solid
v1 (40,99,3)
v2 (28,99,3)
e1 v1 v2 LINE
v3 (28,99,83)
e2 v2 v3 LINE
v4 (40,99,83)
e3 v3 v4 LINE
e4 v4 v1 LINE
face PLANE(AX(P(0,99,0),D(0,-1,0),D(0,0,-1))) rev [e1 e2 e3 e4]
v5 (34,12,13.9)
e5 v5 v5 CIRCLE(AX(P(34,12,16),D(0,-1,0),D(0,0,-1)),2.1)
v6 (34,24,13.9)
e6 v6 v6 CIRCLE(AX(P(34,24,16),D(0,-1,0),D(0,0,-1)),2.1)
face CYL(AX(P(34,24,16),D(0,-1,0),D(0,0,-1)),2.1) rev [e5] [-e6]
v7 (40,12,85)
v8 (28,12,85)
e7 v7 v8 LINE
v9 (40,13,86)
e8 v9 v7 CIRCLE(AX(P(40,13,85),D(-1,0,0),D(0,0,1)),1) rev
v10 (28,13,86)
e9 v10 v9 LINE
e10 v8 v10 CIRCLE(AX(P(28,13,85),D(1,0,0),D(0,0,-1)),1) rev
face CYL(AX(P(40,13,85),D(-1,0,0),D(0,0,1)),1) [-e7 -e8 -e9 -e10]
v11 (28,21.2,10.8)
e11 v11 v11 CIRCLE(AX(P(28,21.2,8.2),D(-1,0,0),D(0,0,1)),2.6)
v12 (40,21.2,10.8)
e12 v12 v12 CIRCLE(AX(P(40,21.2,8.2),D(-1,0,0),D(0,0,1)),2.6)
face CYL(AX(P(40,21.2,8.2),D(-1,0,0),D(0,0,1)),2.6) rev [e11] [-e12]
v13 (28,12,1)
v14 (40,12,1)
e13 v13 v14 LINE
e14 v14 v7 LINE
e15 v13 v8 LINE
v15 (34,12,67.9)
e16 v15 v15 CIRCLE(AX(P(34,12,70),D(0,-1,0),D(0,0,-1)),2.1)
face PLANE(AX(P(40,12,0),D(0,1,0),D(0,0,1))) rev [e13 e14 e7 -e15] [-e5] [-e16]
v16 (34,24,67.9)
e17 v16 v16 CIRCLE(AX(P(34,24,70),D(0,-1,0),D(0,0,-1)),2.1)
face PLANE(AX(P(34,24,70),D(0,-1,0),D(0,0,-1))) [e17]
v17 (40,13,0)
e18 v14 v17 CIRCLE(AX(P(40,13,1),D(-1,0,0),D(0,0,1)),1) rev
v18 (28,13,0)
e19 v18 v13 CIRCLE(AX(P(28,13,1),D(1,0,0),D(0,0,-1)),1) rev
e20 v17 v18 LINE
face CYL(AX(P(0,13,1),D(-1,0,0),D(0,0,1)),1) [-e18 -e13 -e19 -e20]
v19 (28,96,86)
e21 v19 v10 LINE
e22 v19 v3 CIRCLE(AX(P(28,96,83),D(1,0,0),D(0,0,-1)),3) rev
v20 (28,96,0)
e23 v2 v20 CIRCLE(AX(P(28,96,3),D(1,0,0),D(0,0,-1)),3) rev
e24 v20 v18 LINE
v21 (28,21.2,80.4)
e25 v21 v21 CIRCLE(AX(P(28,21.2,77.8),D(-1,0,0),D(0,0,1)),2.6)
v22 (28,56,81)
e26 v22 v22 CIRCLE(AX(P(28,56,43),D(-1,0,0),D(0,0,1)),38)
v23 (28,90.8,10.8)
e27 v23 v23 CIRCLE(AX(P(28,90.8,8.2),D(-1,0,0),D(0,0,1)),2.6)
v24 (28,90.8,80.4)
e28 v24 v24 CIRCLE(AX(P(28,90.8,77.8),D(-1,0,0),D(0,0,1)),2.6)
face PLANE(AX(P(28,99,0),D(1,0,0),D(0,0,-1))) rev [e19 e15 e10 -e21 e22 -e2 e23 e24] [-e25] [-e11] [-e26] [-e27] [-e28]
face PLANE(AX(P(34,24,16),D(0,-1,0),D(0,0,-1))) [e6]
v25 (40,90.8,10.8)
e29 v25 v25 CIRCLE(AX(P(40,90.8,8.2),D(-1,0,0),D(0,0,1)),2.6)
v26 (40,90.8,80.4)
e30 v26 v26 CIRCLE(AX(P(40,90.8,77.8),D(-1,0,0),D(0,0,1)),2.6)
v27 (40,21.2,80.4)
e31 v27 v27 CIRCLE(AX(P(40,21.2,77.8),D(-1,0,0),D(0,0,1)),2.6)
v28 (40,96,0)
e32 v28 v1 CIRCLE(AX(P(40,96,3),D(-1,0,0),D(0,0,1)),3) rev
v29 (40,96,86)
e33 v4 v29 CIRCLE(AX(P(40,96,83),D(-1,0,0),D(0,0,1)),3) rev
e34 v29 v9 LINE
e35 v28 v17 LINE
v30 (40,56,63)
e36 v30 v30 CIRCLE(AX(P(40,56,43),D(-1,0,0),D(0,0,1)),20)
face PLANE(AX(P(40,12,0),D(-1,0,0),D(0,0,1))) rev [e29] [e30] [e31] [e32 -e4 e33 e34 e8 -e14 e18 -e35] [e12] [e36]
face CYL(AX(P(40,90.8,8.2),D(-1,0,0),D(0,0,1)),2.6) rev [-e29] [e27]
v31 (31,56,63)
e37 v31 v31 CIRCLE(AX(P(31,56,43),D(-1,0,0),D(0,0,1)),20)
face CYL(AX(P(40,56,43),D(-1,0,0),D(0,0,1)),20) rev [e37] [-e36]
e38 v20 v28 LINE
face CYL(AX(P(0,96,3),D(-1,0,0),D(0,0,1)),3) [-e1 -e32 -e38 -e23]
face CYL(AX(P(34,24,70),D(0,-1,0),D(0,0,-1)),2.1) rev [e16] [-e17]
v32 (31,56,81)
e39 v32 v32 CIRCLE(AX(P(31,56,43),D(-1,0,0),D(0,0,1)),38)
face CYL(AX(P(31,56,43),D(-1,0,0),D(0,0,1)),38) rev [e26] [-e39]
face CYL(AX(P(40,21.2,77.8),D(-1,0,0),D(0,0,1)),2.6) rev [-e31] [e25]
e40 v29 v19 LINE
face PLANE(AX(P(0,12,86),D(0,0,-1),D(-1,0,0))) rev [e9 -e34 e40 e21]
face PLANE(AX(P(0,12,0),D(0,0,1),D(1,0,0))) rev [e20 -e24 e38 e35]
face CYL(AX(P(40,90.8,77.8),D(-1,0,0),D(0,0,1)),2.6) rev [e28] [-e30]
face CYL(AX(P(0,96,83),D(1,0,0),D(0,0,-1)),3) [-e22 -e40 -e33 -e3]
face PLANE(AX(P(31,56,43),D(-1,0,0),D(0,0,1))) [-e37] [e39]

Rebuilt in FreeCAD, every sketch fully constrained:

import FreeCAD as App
import Part
import Sketcher
from FreeCAD import Vector


def edges_at(feature, points):
    """Names of the edges that pass closest to the given points."""
    edges = feature.Shape.Edges
    near = lambda p: min(range(len(edges)), key=lambda i: edges[i].distToShape(Part.Vertex(*p))[0])
    return sorted({f"Edge{near(p) + 1}" for p in points})


def add_polygon(sketch, points):
    """Adds a closed chain of lines whose ends are joined by coincident constraints."""
    first, n = sketch.GeometryCount, len(points)
    for a, b in zip(points, points[1:] + points[:1]):
        sketch.addGeometry(Part.LineSegment(App.Vector(*a, 0), App.Vector(*b, 0)), False)
    for i in range(n):
        sketch.addConstraint(Sketcher.Constraint("Coincident", first + i, 2, first + (i + 1) % n, 1))

doc = App.newDocument("Part")
body = doc.addObject("PartDesign::Body", "Body")

sketch1 = body.newObject("Sketcher::SketchObject", "Sketch")
sketch1.AttachmentSupport = (doc.getObject("XZ_Plane"), [""])
sketch1.MapMode = "FlatFace"
add_polygon(sketch1, [(0, 0), (0, 86), (40, 86), (40, 0)])
sketch1.addConstraint(Sketcher.Constraint("Vertical", 0))
sketch1.addConstraint(Sketcher.Constraint("Horizontal", 1))
sketch1.addConstraint(Sketcher.Constraint("Vertical", 2))
sketch1.addConstraint(Sketcher.Constraint("Horizontal", 3))
sketch1.addConstraint(Sketcher.Constraint("Coincident", 3, 2, -1, 1))
sketch1.addConstraint(Sketcher.Constraint("DistanceX", 1, 1, 1, 2, 40.0))
sketch1.addConstraint(Sketcher.Constraint("DistanceY", 0, 1, 0, 2, 86.0))
pad1 = body.newObject("PartDesign::Pad", "Pad")
pad1.Profile = sketch1
pad1.Length = 12
pad1.Reversed = True

sketch2 = body.newObject("Sketcher::SketchObject", "Sketch001")
sketch2.AttachmentSupport = (doc.getObject("XZ_Plane"), [""])
sketch2.MapMode = "FlatFace"
sketch2.AttachmentOffset = App.Placement(Vector(0, 0, -12), App.Rotation())
add_polygon(sketch2, [(28, 0), (28, 86), (40, 86), (40, 0)])
sketch2.addConstraint(Sketcher.Constraint("Vertical", 0))
sketch2.addConstraint(Sketcher.Constraint("Horizontal", 1))
sketch2.addConstraint(Sketcher.Constraint("Vertical", 2))
sketch2.addConstraint(Sketcher.Constraint("Horizontal", 3))
sketch2.addConstraint(Sketcher.Constraint("PointOnObject", 2, 2, -1))
sketch2.addConstraint(Sketcher.Constraint("DistanceX", 1, 1, 1, 2, 12.0))
sketch2.addConstraint(Sketcher.Constraint("DistanceY", 0, 1, 0, 2, 86.0))
sketch2.addConstraint(Sketcher.Constraint("DistanceX", -1, 1, 0, 2, 28.0))
pad2 = body.newObject("PartDesign::Pad", "Pad001")
pad2.Profile = sketch2
pad2.Length = 87
pad2.Reversed = True

sketch3 = body.newObject("Sketcher::SketchObject", "Sketch002")
sketch3.AttachmentSupport = (doc.getObject("XZ_Plane"), [""])
sketch3.MapMode = "FlatFace"
sketch3.AttachmentOffset = App.Placement(Vector(0, 0, -12), App.Rotation())
sketch3.addGeometry(Part.Circle(Vector(14, 8.4, 0), Vector(0, 0, 1), 3), False)
sketch3.addGeometry(Part.Circle(Vector(14, 77.6, 0), Vector(0, 0, 1), 3), False)
sketch3.addConstraint(Sketcher.Constraint("Equal", 0, 1))
sketch3.addConstraint(Sketcher.Constraint("Vertical", 0, 3, 1, 3))
sketch3.addConstraint(Sketcher.Constraint("Diameter", 0, 6.0))
sketch3.addConstraint(Sketcher.Constraint("DistanceX", -1, 1, 0, 3, 14.0))
sketch3.addConstraint(Sketcher.Constraint("DistanceY", -1, 1, 0, 3, 8.4))
sketch3.addConstraint(Sketcher.Constraint("DistanceY", -1, 1, 1, 3, 77.6))
pocket1 = body.newObject("PartDesign::Pocket", "Pocket")
pocket1.Profile = sketch3
pocket1.Type = "ThroughAll"
pocket1.Reversed = True

sketch4 = body.newObject("Sketcher::SketchObject", "Sketch003")
sketch4.AttachmentSupport = (doc.getObject("YZ_Plane"), [""])
sketch4.MapMode = "FlatFace"
sketch4.AttachmentOffset = App.Placement(Vector(0, 0, 28), App.Rotation())
sketch4.addGeometry(Part.Circle(Vector(56, 43, 0), Vector(0, 0, 1), 38), False)
sketch4.addConstraint(Sketcher.Constraint("Diameter", 0, 76.0))
sketch4.addConstraint(Sketcher.Constraint("DistanceX", -1, 1, 0, 3, 56.0))
sketch4.addConstraint(Sketcher.Constraint("DistanceY", -1, 1, 0, 3, 43.0))
pocket2 = body.newObject("PartDesign::Pocket", "Pocket001")
pocket2.Profile = sketch4
pocket2.Length = 3
pocket2.Reversed = True

sketch5 = body.newObject("Sketcher::SketchObject", "Sketch004")
sketch5.AttachmentSupport = (doc.getObject("YZ_Plane"), [""])
sketch5.MapMode = "FlatFace"
sketch5.AttachmentOffset = App.Placement(Vector(0, 0, 28), App.Rotation())
sketch5.addGeometry(Part.Circle(Vector(90.8, 77.8, 0), Vector(0, 0, 1), 2.6), False)
sketch5.addGeometry(Part.Circle(Vector(21.2, 77.8, 0), Vector(0, 0, 1), 2.6), False)
sketch5.addGeometry(Part.Circle(Vector(90.8, 8.2, 0), Vector(0, 0, 1), 2.6), False)
sketch5.addGeometry(Part.Circle(Vector(21.2, 8.2, 0), Vector(0, 0, 1), 2.6), False)
sketch5.addConstraint(Sketcher.Constraint("Equal", 0, 1))
sketch5.addConstraint(Sketcher.Constraint("Equal", 1, 2))
sketch5.addConstraint(Sketcher.Constraint("Equal", 2, 3))
sketch5.addConstraint(Sketcher.Constraint("Horizontal", 0, 3, 1, 3))
sketch5.addConstraint(Sketcher.Constraint("Horizontal", 2, 3, 3, 3))
sketch5.addConstraint(Sketcher.Constraint("Vertical", 0, 3, 2, 3))
sketch5.addConstraint(Sketcher.Constraint("Vertical", 1, 3, 3, 3))
sketch5.addConstraint(Sketcher.Constraint("Diameter", 0, 5.2))
sketch5.addConstraint(Sketcher.Constraint("DistanceX", -1, 1, 0, 3, 90.8))
sketch5.addConstraint(Sketcher.Constraint("DistanceY", -1, 1, 0, 3, 77.8))
sketch5.addConstraint(Sketcher.Constraint("DistanceX", -1, 1, 1, 3, 21.2))
sketch5.addConstraint(Sketcher.Constraint("DistanceY", -1, 1, 2, 3, 8.2))
pocket3 = body.newObject("PartDesign::Pocket", "Pocket002")
pocket3.Profile = sketch5
pocket3.Type = "ThroughAll"
pocket3.Reversed = True
doc.recompute()

fillet = body.newObject("PartDesign::Fillet", "Fillet")
fillet.Base = (pocket3, edges_at(pocket3, [(34, 99, 0), (34, 99, 86)]))
fillet.Radius = 3

sketch6 = body.newObject("Sketcher::SketchObject", "Sketch005")
sketch6.AttachmentSupport = (doc.getObject("YZ_Plane"), [""])
sketch6.MapMode = "FlatFace"
sketch6.AttachmentOffset = App.Placement(Vector(0, 0, 28), App.Rotation())
sketch6.addGeometry(Part.Circle(Vector(56, 43, 0), Vector(0, 0, 1), 20), False)
sketch6.addConstraint(Sketcher.Constraint("Diameter", 0, 40.0))
sketch6.addConstraint(Sketcher.Constraint("DistanceX", -1, 1, 0, 3, 56.0))
sketch6.addConstraint(Sketcher.Constraint("DistanceY", -1, 1, 0, 3, 43.0))
pocket4 = body.newObject("PartDesign::Pocket", "Pocket003")
pocket4.Profile = sketch6
pocket4.Type = "ThroughAll"
pocket4.Reversed = True

sketch7 = body.newObject("Sketcher::SketchObject", "Sketch006")
sketch7.AttachmentSupport = (doc.getObject("XY_Plane"), [""])
sketch7.MapMode = "FlatFace"
sketch7.AttachmentOffset = App.Placement(Vector(0, 0, 86), App.Rotation())
add_polygon(sketch7, [(0, 12), (0, 0), (40, 0), (40, 12)])
sketch7.addConstraint(Sketcher.Constraint("Vertical", 0))
sketch7.addConstraint(Sketcher.Constraint("Horizontal", 1))
sketch7.addConstraint(Sketcher.Constraint("Vertical", 2))
sketch7.addConstraint(Sketcher.Constraint("Horizontal", 3))
sketch7.addConstraint(Sketcher.Constraint("Coincident", 0, 2, -1, 1))
sketch7.addConstraint(Sketcher.Constraint("DistanceX", 1, 1, 1, 2, 40.0))
sketch7.addConstraint(Sketcher.Constraint("DistanceY", 0, 2, 0, 1, 12.0))
pocket5 = body.newObject("PartDesign::Pocket", "Pocket004")
pocket5.Profile = sketch7
pocket5.Type = "ThroughAll"
doc.recompute()

fillet2 = body.newObject("PartDesign::Fillet", "Fillet001")
fillet2.Base = (pocket5, edges_at(pocket5, [(34, 12, 0), (34, 12, 86)]))
fillet2.Radius = 1

sketch8 = body.newObject("Sketcher::SketchObject", "Sketch007")
sketch8.AttachmentSupport = (doc.getObject("XZ_Plane"), [""])
sketch8.MapMode = "FlatFace"
sketch8.AttachmentOffset = App.Placement(Vector(0, 0, -12), App.Rotation())
sketch8.addGeometry(Part.Circle(Vector(34, 70, 0), Vector(0, 0, 1), 2.1), False)
sketch8.addGeometry(Part.Circle(Vector(34, 16, 0), Vector(0, 0, 1), 2.1), False)
sketch8.addConstraint(Sketcher.Constraint("Equal", 0, 1))
sketch8.addConstraint(Sketcher.Constraint("Vertical", 0, 3, 1, 3))
sketch8.addConstraint(Sketcher.Constraint("Diameter", 0, 4.2))
sketch8.addConstraint(Sketcher.Constraint("DistanceX", -1, 1, 0, 3, 34.0))
sketch8.addConstraint(Sketcher.Constraint("DistanceY", -1, 1, 0, 3, 70.0))
sketch8.addConstraint(Sketcher.Constraint("DistanceY", -1, 1, 1, 3, 16.0))
pocket6 = body.newObject("PartDesign::Pocket", "Pocket005")
pocket6.Profile = sketch8
pocket6.Length = 12

doc.recompute()
